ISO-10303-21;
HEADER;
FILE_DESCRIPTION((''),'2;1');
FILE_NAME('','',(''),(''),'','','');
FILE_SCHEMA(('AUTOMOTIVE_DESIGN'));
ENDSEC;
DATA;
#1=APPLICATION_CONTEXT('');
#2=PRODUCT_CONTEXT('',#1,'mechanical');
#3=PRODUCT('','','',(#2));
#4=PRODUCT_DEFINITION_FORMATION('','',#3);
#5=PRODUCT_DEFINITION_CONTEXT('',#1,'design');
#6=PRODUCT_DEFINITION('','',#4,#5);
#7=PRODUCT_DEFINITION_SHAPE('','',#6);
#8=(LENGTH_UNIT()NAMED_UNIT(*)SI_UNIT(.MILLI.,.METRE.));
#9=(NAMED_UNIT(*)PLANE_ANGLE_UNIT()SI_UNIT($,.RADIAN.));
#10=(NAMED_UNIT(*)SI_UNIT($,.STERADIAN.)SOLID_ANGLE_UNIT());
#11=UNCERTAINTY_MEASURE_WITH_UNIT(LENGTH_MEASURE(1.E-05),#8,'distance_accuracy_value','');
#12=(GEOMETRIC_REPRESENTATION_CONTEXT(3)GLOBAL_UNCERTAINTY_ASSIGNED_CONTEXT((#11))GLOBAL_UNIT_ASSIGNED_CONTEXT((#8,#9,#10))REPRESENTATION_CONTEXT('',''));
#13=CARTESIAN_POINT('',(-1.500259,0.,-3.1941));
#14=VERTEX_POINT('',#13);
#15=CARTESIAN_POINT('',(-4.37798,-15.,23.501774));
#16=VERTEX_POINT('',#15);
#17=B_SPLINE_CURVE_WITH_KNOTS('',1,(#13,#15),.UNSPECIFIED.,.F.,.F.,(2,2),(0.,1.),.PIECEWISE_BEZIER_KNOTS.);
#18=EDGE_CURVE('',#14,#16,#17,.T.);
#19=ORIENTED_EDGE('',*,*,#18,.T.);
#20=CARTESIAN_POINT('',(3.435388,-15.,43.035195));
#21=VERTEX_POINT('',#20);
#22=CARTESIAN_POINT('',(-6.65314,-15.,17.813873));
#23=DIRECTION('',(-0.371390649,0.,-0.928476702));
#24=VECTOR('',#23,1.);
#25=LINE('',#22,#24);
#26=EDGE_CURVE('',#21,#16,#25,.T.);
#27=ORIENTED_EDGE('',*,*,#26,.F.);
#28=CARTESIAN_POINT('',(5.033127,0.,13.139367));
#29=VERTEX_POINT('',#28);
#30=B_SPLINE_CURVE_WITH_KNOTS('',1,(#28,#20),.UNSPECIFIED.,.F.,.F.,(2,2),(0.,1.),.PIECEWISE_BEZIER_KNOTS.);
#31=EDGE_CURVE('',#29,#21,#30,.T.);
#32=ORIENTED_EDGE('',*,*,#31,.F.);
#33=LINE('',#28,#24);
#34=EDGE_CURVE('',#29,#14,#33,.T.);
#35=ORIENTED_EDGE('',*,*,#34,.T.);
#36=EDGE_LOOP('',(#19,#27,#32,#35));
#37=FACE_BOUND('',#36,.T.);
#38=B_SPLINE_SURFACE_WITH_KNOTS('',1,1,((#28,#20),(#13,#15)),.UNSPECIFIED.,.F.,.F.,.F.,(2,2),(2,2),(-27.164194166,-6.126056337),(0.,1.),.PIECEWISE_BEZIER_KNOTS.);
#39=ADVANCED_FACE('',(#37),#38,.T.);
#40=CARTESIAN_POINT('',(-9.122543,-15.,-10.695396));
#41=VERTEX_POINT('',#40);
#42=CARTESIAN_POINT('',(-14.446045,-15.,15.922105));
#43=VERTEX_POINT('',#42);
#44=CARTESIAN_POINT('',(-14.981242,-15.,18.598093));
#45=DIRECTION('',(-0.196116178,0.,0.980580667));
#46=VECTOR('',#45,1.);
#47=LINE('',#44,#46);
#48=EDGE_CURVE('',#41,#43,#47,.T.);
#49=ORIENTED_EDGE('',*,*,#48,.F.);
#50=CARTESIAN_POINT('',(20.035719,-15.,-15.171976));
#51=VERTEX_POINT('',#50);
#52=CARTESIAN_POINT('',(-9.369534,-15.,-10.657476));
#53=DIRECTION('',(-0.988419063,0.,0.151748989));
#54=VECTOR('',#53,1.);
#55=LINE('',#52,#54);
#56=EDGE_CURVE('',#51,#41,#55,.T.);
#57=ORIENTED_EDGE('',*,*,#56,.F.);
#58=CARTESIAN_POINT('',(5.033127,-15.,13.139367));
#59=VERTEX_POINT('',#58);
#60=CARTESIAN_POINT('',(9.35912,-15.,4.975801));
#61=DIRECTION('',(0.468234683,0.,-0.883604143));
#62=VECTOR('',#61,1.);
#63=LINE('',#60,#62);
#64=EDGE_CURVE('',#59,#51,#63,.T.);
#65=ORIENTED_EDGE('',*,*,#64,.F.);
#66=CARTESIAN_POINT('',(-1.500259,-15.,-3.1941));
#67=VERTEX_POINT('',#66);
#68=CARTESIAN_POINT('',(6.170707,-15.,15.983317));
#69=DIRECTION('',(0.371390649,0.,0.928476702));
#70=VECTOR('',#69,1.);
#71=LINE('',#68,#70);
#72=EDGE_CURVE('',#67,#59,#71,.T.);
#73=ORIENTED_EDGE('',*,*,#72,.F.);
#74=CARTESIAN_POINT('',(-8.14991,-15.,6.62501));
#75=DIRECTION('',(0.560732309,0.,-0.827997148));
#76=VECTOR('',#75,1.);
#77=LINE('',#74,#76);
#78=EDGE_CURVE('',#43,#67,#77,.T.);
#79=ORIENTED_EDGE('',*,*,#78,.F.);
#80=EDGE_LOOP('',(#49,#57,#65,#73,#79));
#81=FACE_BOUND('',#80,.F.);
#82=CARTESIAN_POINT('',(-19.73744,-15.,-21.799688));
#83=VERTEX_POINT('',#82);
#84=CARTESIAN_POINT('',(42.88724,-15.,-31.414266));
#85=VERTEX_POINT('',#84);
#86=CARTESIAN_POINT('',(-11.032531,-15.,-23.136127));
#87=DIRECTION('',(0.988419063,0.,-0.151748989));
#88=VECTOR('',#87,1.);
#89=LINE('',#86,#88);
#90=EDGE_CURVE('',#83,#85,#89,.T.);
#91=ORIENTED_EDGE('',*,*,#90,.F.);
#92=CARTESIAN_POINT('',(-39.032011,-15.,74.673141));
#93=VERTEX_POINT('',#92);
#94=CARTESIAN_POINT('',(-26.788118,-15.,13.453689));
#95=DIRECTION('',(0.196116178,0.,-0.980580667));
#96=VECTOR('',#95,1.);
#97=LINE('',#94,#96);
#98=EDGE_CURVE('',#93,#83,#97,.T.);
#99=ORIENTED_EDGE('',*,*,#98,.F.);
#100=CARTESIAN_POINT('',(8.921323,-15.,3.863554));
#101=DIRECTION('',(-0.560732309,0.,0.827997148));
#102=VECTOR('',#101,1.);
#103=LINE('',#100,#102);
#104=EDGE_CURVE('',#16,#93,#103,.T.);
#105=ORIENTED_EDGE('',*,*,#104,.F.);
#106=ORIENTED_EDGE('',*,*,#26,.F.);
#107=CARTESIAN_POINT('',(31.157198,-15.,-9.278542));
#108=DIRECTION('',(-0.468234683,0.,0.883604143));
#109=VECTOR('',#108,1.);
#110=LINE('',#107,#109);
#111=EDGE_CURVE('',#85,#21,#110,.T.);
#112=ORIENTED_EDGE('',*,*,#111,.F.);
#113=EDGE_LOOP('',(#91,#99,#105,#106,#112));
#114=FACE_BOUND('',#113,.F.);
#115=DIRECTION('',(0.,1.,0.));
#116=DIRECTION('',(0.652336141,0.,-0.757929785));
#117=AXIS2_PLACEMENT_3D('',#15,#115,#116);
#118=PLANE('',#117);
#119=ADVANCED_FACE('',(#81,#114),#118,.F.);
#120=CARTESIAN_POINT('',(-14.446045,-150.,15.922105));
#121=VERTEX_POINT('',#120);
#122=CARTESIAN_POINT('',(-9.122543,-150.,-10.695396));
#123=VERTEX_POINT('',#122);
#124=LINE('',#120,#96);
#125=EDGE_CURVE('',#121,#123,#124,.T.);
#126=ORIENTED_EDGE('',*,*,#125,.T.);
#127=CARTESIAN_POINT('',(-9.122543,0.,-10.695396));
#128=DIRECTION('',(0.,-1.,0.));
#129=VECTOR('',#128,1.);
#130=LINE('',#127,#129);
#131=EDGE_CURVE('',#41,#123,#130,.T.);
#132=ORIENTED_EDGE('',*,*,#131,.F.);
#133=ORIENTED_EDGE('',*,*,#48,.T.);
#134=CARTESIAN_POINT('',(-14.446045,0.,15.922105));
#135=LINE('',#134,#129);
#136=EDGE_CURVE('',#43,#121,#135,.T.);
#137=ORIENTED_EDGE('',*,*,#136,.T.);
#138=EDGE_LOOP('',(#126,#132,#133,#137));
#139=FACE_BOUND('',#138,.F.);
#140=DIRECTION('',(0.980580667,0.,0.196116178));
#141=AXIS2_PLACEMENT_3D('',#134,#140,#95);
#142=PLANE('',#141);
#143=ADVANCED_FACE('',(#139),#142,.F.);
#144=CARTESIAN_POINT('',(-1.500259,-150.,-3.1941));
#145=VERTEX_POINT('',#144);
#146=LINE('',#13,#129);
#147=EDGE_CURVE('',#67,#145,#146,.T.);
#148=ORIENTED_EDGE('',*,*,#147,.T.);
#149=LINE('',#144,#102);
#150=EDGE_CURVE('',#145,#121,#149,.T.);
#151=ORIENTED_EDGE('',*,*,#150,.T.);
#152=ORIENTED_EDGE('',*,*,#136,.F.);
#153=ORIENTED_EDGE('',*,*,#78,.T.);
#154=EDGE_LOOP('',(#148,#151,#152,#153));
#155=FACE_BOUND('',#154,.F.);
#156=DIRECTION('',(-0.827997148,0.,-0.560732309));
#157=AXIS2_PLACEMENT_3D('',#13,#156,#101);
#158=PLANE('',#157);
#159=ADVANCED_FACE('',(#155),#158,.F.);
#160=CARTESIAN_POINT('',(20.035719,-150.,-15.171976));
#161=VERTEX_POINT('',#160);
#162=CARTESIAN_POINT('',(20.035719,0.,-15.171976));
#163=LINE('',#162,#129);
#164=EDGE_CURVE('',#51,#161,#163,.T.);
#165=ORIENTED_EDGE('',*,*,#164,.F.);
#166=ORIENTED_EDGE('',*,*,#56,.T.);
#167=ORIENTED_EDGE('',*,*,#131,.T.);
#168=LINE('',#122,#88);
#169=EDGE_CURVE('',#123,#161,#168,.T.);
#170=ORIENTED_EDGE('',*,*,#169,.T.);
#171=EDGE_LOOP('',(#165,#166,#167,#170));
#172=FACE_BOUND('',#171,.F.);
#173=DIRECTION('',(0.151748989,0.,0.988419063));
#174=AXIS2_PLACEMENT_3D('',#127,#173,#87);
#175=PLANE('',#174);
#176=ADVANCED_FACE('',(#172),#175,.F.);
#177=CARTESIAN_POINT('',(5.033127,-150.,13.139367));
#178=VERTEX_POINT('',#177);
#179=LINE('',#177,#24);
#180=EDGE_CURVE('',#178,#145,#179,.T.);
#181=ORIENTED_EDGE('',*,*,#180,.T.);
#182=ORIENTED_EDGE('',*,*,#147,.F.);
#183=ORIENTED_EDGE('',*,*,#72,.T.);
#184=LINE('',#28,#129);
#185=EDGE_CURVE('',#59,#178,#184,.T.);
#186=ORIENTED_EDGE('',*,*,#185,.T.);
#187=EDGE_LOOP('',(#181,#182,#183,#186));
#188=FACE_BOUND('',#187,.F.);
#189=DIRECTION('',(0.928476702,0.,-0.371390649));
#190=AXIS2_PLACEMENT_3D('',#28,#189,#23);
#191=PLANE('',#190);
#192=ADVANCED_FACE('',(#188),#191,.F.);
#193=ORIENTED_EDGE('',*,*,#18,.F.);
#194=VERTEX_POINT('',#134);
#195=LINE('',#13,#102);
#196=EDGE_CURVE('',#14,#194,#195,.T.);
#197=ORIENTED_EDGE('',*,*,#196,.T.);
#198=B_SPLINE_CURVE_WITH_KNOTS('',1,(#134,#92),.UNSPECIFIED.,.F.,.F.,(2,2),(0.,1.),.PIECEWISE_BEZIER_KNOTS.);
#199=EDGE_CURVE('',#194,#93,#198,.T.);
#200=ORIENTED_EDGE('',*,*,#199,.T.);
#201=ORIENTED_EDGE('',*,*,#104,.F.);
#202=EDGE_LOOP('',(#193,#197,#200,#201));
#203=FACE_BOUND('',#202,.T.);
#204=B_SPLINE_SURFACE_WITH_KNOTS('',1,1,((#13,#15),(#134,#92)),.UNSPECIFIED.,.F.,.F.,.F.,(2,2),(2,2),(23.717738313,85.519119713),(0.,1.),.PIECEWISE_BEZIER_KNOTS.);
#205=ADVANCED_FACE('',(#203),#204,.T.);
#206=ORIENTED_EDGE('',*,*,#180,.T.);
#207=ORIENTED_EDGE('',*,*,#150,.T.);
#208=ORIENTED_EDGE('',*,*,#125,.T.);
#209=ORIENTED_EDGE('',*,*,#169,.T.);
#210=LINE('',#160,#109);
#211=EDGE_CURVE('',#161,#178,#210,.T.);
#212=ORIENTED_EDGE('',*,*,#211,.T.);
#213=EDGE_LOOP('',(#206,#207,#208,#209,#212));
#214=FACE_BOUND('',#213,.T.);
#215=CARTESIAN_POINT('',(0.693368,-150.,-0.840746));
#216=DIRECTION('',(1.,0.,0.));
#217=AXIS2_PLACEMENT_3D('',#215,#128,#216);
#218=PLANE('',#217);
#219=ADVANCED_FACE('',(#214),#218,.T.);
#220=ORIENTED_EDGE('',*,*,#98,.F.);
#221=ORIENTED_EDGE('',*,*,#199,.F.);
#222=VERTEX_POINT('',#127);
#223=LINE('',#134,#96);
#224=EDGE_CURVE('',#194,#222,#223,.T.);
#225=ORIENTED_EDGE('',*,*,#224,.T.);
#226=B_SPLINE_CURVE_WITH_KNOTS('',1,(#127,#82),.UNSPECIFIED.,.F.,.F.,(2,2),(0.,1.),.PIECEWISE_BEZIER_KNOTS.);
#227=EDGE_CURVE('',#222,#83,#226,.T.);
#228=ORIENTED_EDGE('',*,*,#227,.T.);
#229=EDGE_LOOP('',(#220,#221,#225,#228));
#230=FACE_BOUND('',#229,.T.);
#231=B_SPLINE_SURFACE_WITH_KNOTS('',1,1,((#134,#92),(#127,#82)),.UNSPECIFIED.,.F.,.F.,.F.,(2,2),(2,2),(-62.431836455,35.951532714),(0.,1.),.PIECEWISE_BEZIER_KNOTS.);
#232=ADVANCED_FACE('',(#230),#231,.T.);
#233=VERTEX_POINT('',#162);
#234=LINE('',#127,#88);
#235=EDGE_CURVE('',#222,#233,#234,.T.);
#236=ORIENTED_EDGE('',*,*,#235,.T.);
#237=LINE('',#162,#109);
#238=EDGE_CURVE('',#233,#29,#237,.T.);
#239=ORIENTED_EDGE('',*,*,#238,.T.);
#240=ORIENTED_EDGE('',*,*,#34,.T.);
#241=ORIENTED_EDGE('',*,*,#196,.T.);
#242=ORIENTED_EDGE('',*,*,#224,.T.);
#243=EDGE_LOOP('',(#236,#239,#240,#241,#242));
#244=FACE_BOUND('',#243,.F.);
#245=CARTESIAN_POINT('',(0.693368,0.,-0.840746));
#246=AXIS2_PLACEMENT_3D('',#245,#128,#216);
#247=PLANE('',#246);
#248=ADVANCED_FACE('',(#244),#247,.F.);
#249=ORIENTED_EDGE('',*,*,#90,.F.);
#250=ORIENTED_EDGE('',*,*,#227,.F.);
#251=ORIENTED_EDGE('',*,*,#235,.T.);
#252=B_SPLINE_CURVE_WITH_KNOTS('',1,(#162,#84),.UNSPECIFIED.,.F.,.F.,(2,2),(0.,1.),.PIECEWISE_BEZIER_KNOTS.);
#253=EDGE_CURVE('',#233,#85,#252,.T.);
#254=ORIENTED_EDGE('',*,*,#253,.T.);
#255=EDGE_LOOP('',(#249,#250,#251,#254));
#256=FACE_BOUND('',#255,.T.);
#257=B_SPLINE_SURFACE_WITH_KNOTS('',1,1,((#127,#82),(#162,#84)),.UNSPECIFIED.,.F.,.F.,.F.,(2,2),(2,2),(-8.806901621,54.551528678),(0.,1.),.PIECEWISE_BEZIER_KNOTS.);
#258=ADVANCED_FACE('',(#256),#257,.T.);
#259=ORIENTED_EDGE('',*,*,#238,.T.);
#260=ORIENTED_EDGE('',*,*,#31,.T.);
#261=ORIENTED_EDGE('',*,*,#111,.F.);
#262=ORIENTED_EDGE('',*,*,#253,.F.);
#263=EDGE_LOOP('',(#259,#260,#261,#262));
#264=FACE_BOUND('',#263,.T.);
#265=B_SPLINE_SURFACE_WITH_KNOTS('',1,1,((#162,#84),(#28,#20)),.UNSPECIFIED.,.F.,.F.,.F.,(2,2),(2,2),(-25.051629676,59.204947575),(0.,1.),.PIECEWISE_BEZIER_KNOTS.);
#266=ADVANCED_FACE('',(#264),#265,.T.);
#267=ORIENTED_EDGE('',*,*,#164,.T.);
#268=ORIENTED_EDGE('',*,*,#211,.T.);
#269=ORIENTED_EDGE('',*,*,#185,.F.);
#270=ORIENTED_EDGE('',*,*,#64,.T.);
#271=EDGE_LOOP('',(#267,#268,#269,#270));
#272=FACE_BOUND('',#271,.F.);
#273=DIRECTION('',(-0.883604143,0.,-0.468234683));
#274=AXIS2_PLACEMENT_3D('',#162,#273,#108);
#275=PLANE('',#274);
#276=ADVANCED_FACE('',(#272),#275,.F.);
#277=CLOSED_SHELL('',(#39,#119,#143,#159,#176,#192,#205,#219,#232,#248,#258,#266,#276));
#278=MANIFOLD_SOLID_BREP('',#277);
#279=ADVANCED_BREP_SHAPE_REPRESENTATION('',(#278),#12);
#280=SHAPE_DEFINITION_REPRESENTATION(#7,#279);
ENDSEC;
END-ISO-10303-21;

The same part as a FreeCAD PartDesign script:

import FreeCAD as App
import Part
import Sketcher
from FreeCAD import Vector
Q = App.Units.Quantity


def add_polygon(sketch, points):
    """Adds a closed chain of lines whose ends are joined by coincident constraints."""
    first, n = sketch.GeometryCount, len(points)
    for a, b in zip(points, points[1:] + points[:1]):
        sketch.addGeometry(Part.LineSegment(App.Vector(*a, 0), App.Vector(*b, 0)), False)
    for i in range(n):
        sketch.addConstraint(Sketcher.Constraint("Coincident", first + i, 2, first + (i + 1) % n, 1))

doc = App.newDocument("Part")
params = doc.addObject("Spreadsheet::Sheet", "Params")
for row, (alias, value) in enumerate([
    ("pad1_length", "150 mm"),
    ("pad2_length", "15 mm"),
    ("pad2_taper", "40 deg"),
], start=1):
    params.set(f"A{row}", alias)
    params.set(f"B{row}", "=" + value)
    params.setAlias(f"B{row}", alias)

body = doc.addObject("PartDesign::Body", "Body")

# Sketch on XZ plane
sketch1 = body.newObject("Sketcher::SketchObject", "Sketch")
sketch1.AttachmentSupport = (doc.getObject("XZ_Plane"), [""])
sketch1.MapMode = "FlatFace"
add_polygon(sketch1, [(-2, -3), (-14, 16), (-9, -11), (20, -15), (5, 13)])  # lines 0-4
sketch1.addConstraint(Sketcher.Constraint("Distance", 2, Q("29.499899 mm")))
sketch1.addConstraint(Sketcher.Constraint("DistanceY", 4, 2, -1, 1, Q("3.1941 mm")))
sketch1.addConstraint(Sketcher.Constraint("DistanceX", 0, 2, 1, 2, Q("5.323501 mm")))
sketch1.addConstraint(Sketcher.Constraint("DistanceY", 1, 2, 0, 2, Q("26.6175 mm")))
sketch1.addConstraint(Sketcher.Constraint("Distance", 4, Q("17.591682 mm")))
sketch1.addConstraint(Sketcher.Constraint("DistanceX", -1, 1, 2, 2, Q("20.035719 mm")))
sketch1.addConstraint(Sketcher.Constraint("DistanceX", 4, 2, -1, 1, Q("1.500259 mm")))
sketch1.addConstraint(Sketcher.Constraint("DistanceY", 2, 2, 1, 2, Q("4.47658 mm")))
sketch1.addConstraint(Sketcher.Constraint("DistanceX", 0, 2, 3, 2, Q("19.479172 mm")))
sketch1.addConstraint(Sketcher.Constraint("Distance", 0, Q("23.087283 mm")))
pad1 = body.newObject("PartDesign::Pad", "Pad")
pad1.Profile = sketch1
pad1.setExpression("Length", "Params.pad1_length")

# Sketch on XZ plane
sketch2 = body.newObject("Sketcher::SketchObject", "Sketch001")
sketch2.AttachmentSupport = (doc.getObject("XZ_Plane"), [""])
sketch2.MapMode = "FlatFace"
add_polygon(sketch2, [(-2, -3), (-14, 16), (-9, -11), (20, -15), (5, 13)])  # lines 0-4
sketch2.addConstraint(Sketcher.Constraint("Distance", 2, Q("29.499899 mm")))
sketch2.addConstraint(Sketcher.Constraint("DistanceY", 4, 2, -1, 1, Q("3.1941 mm")))
sketch2.addConstraint(Sketcher.Constraint("DistanceX", 0, 2, 1, 2, Q("5.323501 mm")))
sketch2.addConstraint(Sketcher.Constraint("DistanceY", 1, 2, 0, 2, Q("26.6175 mm")))
sketch2.addConstraint(Sketcher.Constraint("Distance", 4, Q("17.591682 mm")))
sketch2.addConstraint(Sketcher.Constraint("DistanceX", -1, 1, 2, 2, Q("20.035719 mm")))
sketch2.addConstraint(Sketcher.Constraint("DistanceX", 4, 2, -1, 1, Q("1.500259 mm")))
sketch2.addConstraint(Sketcher.Constraint("DistanceY", 2, 2, 1, 2, Q("4.47658 mm")))
sketch2.addConstraint(Sketcher.Constraint("DistanceX", 0, 2, 3, 2, Q("19.479172 mm")))
sketch2.addConstraint(Sketcher.Constraint("Distance", 0, Q("23.087283 mm")))
pad2 = body.newObject("PartDesign::Pad", "Pad001")
pad2.Profile = sketch2
pad2.setExpression("Length", "Params.pad2_length")
pad2.setExpression("TaperAngle", "Params.pad2_taper")

doc.recompute()
